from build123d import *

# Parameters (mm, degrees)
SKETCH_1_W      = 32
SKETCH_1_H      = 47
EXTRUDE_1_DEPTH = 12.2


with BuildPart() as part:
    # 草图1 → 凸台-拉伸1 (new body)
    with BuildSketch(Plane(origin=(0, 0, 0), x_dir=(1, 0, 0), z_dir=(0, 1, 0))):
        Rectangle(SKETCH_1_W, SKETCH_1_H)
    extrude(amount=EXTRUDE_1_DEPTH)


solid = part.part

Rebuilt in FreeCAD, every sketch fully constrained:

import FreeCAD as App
import Part
import Sketcher
Q = App.Units.Quantity

doc = App.newDocument("Part")
body = doc.addObject("PartDesign::Body", "Body")

sketch1 = body.newObject("Sketcher::SketchObject", "Sketch")
sketch1.AttachmentSupport = (doc.getObject("XZ_Plane"), [""])
sketch1.MapMode = "FlatFace"
sketch1.addGeometry([
    Part.LineSegment(App.Vector(-16, -24, 0), App.Vector(-16, 24, 0)),
    Part.LineSegment(App.Vector(-16, 24, 0), App.Vector(16, 24, 0)),
    Part.LineSegment(App.Vector(16, 24, 0), App.Vector(16, -24, 0)),
    Part.LineSegment(App.Vector(16, -24, 0), App.Vector(-16, -24, 0)),
], False)
sketch1.addConstraint([
    Sketcher.Constraint("Coincident", 0, 2, 1, 1),
    Sketcher.Constraint("Coincident", 1, 2, 2, 1),
    Sketcher.Constraint("Coincident", 2, 2, 3, 1),
    Sketcher.Constraint("Coincident", 3, 2, 0, 1),
    Sketcher.Constraint("Vertical", 0),
    Sketcher.Constraint("Horizontal", 1),
    Sketcher.Constraint("Vertical", 2),
    Sketcher.Constraint("Horizontal", 3),
    Sketcher.Constraint("Symmetric", 0, 2, 2, 2, -1, 1),
    Sketcher.Constraint("DistanceX", 1, 1, 1, 2, Q("32 mm")),
    Sketcher.Constraint("DistanceY", 0, 1, 0, 2, Q("47 mm")),
])
pad1 = body.newObject("PartDesign::Pad", "Pad")
pad1.Profile = sketch1
pad1.Length = 12.2
pad1.Reversed = True

doc.recompute()
